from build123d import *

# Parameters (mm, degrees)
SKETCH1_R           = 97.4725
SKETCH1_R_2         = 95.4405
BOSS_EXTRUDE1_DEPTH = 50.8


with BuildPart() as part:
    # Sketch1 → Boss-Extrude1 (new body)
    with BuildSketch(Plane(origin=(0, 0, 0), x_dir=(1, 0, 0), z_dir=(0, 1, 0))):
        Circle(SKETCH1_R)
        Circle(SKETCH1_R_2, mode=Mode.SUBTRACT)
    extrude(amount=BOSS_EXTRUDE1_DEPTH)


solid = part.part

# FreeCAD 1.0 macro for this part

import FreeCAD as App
import Part
import Sketcher
Q = App.Units.Quantity

doc = App.newDocument("Part")
body = doc.addObject("PartDesign::Body", "Body")

sketch1 = body.newObject("Sketcher::SketchObject", "Sketch")
sketch1.AttachmentSupport = (doc.getObject("XZ_Plane"), [""])
sketch1.MapMode = "FlatFace"
sketch1.addGeometry([
    Part.Circle(App.Vector(0, 0, 0), App.Vector(0, 0, 1), 97),
    Part.Circle(App.Vector(0, 0, 0), App.Vector(0, 0, 1), 95),
], False)
sketch1.addConstraint([
    Sketcher.Constraint("Coincident", 0, 3, -1, 1),
    Sketcher.Constraint("Coincident", 1, 3, -1, 1),
    Sketcher.Constraint("Diameter", 0, Q("7.675 in")),
    Sketcher.Constraint("Diameter", 1, Q("7.515 in")),
])
pad1 = body.newObject("PartDesign::Pad", "Pad")
pad1.Profile = sketch1
pad1.Length = Q("2 in")
pad1.Reversed = True

doc.recompute()
